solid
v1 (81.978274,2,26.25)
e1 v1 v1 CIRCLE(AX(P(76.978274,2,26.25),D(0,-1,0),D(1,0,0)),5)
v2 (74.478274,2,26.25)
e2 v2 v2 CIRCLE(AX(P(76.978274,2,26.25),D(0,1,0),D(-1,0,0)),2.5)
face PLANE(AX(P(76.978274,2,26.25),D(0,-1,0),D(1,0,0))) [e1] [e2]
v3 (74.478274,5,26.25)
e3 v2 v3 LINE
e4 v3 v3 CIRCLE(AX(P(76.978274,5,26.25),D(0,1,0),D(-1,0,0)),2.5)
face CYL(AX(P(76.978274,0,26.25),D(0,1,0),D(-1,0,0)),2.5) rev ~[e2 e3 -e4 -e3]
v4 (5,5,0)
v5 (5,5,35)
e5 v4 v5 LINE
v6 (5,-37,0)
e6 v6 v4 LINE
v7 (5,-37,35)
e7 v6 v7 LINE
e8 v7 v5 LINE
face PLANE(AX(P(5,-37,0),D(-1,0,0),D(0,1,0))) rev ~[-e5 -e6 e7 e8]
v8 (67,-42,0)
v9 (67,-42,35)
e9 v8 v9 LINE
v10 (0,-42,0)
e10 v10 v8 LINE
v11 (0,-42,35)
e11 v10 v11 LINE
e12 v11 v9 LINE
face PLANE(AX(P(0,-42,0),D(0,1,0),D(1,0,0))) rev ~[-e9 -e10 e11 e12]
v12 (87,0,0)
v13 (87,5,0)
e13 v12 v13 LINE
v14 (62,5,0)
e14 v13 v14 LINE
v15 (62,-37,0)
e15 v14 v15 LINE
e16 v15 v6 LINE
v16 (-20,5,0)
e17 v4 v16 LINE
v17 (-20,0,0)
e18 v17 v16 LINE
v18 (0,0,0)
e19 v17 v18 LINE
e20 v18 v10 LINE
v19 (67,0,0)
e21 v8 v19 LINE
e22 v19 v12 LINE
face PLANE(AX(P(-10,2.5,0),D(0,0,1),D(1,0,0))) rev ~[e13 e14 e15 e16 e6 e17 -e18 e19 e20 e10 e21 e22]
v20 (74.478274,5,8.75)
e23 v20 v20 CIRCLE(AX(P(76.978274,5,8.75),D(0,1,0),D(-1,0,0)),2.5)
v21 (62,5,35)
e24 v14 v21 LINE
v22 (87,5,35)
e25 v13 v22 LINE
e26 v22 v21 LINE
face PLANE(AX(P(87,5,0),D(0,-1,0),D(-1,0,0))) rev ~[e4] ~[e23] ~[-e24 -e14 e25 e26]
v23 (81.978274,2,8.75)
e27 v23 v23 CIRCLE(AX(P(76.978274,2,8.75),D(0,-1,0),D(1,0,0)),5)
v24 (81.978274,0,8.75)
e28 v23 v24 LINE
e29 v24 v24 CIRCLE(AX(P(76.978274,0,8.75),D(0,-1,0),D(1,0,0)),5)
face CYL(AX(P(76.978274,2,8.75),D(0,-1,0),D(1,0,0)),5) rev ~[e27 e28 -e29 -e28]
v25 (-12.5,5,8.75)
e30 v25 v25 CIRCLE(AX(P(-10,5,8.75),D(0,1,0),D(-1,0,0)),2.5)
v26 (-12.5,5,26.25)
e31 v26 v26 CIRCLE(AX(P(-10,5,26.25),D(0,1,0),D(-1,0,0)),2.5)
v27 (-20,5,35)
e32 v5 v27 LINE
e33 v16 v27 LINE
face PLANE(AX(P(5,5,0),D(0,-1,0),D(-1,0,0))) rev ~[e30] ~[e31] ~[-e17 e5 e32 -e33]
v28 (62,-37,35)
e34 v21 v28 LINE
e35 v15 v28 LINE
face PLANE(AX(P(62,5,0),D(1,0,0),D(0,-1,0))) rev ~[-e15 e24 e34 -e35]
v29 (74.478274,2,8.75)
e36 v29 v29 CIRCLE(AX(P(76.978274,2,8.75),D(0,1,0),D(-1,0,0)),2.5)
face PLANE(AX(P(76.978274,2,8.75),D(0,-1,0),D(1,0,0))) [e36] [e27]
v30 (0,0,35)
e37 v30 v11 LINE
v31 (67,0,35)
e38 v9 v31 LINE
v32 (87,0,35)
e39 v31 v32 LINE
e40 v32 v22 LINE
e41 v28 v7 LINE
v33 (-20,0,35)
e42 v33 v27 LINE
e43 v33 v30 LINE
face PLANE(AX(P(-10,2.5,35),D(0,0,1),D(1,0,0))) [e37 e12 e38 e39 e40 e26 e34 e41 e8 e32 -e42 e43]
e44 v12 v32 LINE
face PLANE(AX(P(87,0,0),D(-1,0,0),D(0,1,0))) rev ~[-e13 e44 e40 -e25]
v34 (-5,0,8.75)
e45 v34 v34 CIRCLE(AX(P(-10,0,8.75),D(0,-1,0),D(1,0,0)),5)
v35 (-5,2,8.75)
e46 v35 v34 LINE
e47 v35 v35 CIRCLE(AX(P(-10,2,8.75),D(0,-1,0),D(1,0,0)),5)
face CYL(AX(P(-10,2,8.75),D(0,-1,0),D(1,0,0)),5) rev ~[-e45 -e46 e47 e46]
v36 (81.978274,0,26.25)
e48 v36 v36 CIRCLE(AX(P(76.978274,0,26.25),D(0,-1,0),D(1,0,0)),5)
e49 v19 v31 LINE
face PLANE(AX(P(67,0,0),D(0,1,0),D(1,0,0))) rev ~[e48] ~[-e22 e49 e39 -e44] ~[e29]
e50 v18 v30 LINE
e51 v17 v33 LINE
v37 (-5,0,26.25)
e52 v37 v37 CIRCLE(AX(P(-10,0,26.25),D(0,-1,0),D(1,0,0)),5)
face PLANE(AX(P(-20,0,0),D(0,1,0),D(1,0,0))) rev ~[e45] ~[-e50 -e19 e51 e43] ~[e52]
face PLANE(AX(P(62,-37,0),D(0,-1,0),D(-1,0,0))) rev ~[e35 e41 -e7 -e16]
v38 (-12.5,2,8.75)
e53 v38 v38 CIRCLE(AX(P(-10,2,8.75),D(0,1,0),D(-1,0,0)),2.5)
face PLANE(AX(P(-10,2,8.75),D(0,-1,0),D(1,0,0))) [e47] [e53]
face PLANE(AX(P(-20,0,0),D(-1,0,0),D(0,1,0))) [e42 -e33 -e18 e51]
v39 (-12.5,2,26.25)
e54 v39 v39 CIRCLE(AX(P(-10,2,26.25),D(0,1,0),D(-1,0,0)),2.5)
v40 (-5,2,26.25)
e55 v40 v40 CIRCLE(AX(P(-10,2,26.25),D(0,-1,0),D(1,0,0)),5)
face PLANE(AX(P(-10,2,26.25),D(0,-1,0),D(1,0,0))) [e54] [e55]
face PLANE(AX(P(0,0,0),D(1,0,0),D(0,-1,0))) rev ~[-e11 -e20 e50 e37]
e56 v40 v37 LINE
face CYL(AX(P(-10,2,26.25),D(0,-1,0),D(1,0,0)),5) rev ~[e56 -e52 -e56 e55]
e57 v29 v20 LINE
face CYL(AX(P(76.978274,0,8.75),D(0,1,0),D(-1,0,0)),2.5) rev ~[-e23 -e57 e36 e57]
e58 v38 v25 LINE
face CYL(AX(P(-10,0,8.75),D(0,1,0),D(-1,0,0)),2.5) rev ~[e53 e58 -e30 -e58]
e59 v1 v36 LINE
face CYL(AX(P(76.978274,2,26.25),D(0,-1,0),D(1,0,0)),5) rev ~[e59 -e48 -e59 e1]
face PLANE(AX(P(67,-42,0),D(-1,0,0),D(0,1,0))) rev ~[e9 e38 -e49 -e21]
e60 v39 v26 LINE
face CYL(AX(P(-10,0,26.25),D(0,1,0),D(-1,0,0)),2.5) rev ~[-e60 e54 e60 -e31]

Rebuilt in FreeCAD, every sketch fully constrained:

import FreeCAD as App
import Part
import Sketcher

V = App.Vector
Q = App.Units.Quantity


def add_polygon(sketch, points):
    """Adds a closed chain of lines whose ends are joined by coincident constraints."""
    first, n = sketch.GeometryCount, len(points)
    for a, b in zip(points, points[1:] + points[:1]):
        sketch.addGeometry(Part.LineSegment(App.Vector(*a, 0), App.Vector(*b, 0)), False)
    for i in range(n):
        sketch.addConstraint(Sketcher.Constraint("Coincident", first + i, 2, first + (i + 1) % n, 1))

doc = App.newDocument("Part")
params = doc.addObject("Spreadsheet::Sheet", "Params")
for row, (alias, value) in enumerate([
    ("sketch1_width", "20 mm"),
    ("sketch1_width2", "67 mm"),
    ("sketch1_width3", "25 mm"),
    ("sketch1_height", "5 mm"),
    ("sketch1_height2", "42 mm"),
    ("pad1_length", "35 mm"),
    ("sketch2_diameter", "5 mm"),
    ("hole_diameter", "5 mm"),
    ("hole_depth", "5 mm"),
    ("hole_cbore_diameter", "10 mm"),
    ("hole_cbore_depth", "2 mm"),
], start=1):
    params.set(f"A{row}", alias)
    params.set(f"B{row}", "=" + value)
    params.setAlias(f"B{row}", alias)

body = doc.addObject("PartDesign::Body", "Body")

sketch1 = body.newObject("Sketcher::SketchObject", "Sketch")
sketch1.AttachmentSupport = (doc.getObject("XY_Plane"), [""])
sketch1.MapMode = "FlatFace"
add_polygon(sketch1, [(-20, 5), (-20, 0), (0, 0), (0, -42), (67, -42), (67, 0), (87, 0), (87, 5), (62, 5), (62, -37), (5, -37), (5, 5)])
sketch1.addConstraint([
    Sketcher.Constraint("Vertical", 0),
    Sketcher.Constraint("Horizontal", 1),
    Sketcher.Constraint("Vertical", 2),
    Sketcher.Constraint("Horizontal", 3),
    Sketcher.Constraint("Vertical", 4),
    Sketcher.Constraint("Horizontal", 5),
    Sketcher.Constraint("Vertical", 6),
    Sketcher.Constraint("Horizontal", 7),
    Sketcher.Constraint("Vertical", 8),
    Sketcher.Constraint("Horizontal", 9),
    Sketcher.Constraint("Vertical", 10),
    Sketcher.Constraint("Horizontal", 11),
    Sketcher.Constraint("Coincident", 1, 2, -1, 1),
    Sketcher.Constraint("PointOnObject", 4, 2, -1),
    Sketcher.Constraint("Horizontal", 7, 2, 10, 2),
    Sketcher.Constraint("Equal", 1, 5),
    Sketcher.Constraint("Equal", 7, 11),
    Sketcher.Constraint("Equal", 4, 8),
    Sketcher.Constraint("DistanceX", 1, 1, 1, 2, Q("20 mm")),
    Sketcher.Constraint("DistanceX", 3, 1, 3, 2, Q("67 mm")),
    Sketcher.Constraint("DistanceX", 7, 2, 7, 1, Q("25 mm")),
    Sketcher.Constraint("DistanceY", 0, 2, 0, 1, Q("5 mm")),
    Sketcher.Constraint("DistanceY", 2, 2, 2, 1, Q("42 mm")),
])
sketch1.setExpression("Constraints[30]", "Params.sketch1_width")
sketch1.setExpression("Constraints[31]", "Params.sketch1_width2")
sketch1.setExpression("Constraints[32]", "Params.sketch1_width3")
sketch1.setExpression("Constraints[33]", "Params.sketch1_height")
sketch1.setExpression("Constraints[34]", "Params.sketch1_height2")
pad1 = body.newObject("PartDesign::Pad", "Pad")
pad1.Profile = sketch1
pad1.setExpression("Length", "Params.pad1_length")

sketch2 = body.newObject("Sketcher::SketchObject", "Sketch001")
sketch2.AttachmentSupport = (doc.getObject("XZ_Plane"), [""])
sketch2.MapMode = "FlatFace"
sketch2.addGeometry([
    Part.Circle(V(-10, 26.2, 0), V(0, 0, 1), 2.5),
    Part.Circle(V(-10, 8.8, 0), V(0, 0, 1), 2.5),
    Part.Circle(V(77, 8.8, 0), V(0, 0, 1), 2.5),
    Part.Circle(V(77, 26.2, 0), V(0, 0, 1), 2.5),
], False)
sketch2.addConstraint([
    Sketcher.Constraint("Equal", 0, 1),
    Sketcher.Constraint("Equal", 1, 2),
    Sketcher.Constraint("Equal", 2, 3),
    Sketcher.Constraint("Horizontal", 1, 3, 2, 3),
    Sketcher.Constraint("Horizontal", 0, 3, 3, 3),
    Sketcher.Constraint("Vertical", 0, 3, 1, 3),
    Sketcher.Constraint("Vertical", 2, 3, 3, 3),
    Sketcher.Constraint("Diameter", 0, Q("5 mm")),
    Sketcher.Constraint("DistanceX", 0, 3, -1, 1, Q("10 mm")),
    Sketcher.Constraint("DistanceY", 1, 3, 0, 3, Q("17.5 mm")),
    Sketcher.Constraint("DistanceY", -1, 1, 0, 3, Q("26.25 mm")),
    Sketcher.Constraint("DistanceX", -1, 1, 2, 3, Q("76.978274 mm")),
])
sketch2.setExpression("Constraints[7]", "Params.sketch2_diameter")
doc.recompute()
hole = body.newObject("PartDesign::Hole", "Hole")
hole.Profile = sketch2
hole.ThreadType = "None"
hole.setExpression("Diameter", "Params.hole_diameter")
hole.DepthType = "Dimension"
hole.setExpression("Depth", "Params.hole_depth")
hole.DrillPoint = "Flat"
hole.HoleCutType = "Counterbore"
hole.setExpression("HoleCutDiameter", "Params.hole_cbore_diameter")
hole.setExpression("HoleCutDepth", "Params.hole_cbore_depth")

doc.recompute()
